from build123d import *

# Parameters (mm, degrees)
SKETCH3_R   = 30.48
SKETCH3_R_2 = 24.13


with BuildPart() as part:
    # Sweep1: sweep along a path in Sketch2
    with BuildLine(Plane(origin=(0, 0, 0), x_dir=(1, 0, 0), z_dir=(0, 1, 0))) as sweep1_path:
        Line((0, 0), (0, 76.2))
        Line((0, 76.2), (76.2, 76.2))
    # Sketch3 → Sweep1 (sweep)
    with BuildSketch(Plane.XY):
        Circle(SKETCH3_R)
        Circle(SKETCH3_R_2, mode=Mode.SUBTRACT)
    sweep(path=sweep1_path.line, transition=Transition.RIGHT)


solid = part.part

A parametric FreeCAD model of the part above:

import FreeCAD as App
import Part
import Sketcher
Q = App.Units.Quantity

doc = App.newDocument("Part")
body = doc.addObject("PartDesign::Body", "Body")

# Sketch on XY plane
sketch1 = body.newObject("Sketcher::SketchObject", "Sketch")
sketch1.AttachmentSupport = (doc.getObject("XY_Plane"), [""])
sketch1.MapMode = "FlatFace"
sketch1.addGeometry([
    Part.Circle(App.Vector(0, 0, 0), App.Vector(0, 0, 1), 30),
    Part.Circle(App.Vector(0, 0, 0), App.Vector(0, 0, 1), 24),
], False)
sketch1.addConstraint([
    Sketcher.Constraint("Coincident", 0, 3, -1, 1),
    Sketcher.Constraint("Coincident", 1, 3, -1, 1),
    Sketcher.Constraint("Diameter", 0, Q("2.4 in")),
    Sketcher.Constraint("Diameter", 1, Q("1.9 in")),
])

# Sketch on XZ plane
sketch2 = body.newObject("Sketcher::SketchObject", "Sketch001")
sketch2.AttachmentSupport = (doc.getObject("XZ_Plane"), [""])
sketch2.MapMode = "FlatFace"
sketch2.addGeometry([
    Part.LineSegment(App.Vector(0, 0, 0), App.Vector(0, -76, 0)),
    Part.LineSegment(App.Vector(0, -76, 0), App.Vector(76, -76, 0)),
], False)
sketch2.addConstraint([
    Sketcher.Constraint("Coincident", 0, 2, 1, 1),
    Sketcher.Constraint("Vertical", 0),
    Sketcher.Constraint("Horizontal", 1),
    Sketcher.Constraint("Coincident", 0, 1, -1, 1),
    Sketcher.Constraint("Equal", 1, 0),
    Sketcher.Constraint("DistanceX", 1, 1, 1, 2, Q("3 in")),
])
doc.recompute()

additivepipe = body.newObject("PartDesign::AdditivePipe", "AdditivePipe")
additivepipe.Profile = sketch1
additivepipe.Spine = (sketch2, ["Edge1", "Edge2"])
additivepipe.Transition = "Right corner"

doc.recompute()
